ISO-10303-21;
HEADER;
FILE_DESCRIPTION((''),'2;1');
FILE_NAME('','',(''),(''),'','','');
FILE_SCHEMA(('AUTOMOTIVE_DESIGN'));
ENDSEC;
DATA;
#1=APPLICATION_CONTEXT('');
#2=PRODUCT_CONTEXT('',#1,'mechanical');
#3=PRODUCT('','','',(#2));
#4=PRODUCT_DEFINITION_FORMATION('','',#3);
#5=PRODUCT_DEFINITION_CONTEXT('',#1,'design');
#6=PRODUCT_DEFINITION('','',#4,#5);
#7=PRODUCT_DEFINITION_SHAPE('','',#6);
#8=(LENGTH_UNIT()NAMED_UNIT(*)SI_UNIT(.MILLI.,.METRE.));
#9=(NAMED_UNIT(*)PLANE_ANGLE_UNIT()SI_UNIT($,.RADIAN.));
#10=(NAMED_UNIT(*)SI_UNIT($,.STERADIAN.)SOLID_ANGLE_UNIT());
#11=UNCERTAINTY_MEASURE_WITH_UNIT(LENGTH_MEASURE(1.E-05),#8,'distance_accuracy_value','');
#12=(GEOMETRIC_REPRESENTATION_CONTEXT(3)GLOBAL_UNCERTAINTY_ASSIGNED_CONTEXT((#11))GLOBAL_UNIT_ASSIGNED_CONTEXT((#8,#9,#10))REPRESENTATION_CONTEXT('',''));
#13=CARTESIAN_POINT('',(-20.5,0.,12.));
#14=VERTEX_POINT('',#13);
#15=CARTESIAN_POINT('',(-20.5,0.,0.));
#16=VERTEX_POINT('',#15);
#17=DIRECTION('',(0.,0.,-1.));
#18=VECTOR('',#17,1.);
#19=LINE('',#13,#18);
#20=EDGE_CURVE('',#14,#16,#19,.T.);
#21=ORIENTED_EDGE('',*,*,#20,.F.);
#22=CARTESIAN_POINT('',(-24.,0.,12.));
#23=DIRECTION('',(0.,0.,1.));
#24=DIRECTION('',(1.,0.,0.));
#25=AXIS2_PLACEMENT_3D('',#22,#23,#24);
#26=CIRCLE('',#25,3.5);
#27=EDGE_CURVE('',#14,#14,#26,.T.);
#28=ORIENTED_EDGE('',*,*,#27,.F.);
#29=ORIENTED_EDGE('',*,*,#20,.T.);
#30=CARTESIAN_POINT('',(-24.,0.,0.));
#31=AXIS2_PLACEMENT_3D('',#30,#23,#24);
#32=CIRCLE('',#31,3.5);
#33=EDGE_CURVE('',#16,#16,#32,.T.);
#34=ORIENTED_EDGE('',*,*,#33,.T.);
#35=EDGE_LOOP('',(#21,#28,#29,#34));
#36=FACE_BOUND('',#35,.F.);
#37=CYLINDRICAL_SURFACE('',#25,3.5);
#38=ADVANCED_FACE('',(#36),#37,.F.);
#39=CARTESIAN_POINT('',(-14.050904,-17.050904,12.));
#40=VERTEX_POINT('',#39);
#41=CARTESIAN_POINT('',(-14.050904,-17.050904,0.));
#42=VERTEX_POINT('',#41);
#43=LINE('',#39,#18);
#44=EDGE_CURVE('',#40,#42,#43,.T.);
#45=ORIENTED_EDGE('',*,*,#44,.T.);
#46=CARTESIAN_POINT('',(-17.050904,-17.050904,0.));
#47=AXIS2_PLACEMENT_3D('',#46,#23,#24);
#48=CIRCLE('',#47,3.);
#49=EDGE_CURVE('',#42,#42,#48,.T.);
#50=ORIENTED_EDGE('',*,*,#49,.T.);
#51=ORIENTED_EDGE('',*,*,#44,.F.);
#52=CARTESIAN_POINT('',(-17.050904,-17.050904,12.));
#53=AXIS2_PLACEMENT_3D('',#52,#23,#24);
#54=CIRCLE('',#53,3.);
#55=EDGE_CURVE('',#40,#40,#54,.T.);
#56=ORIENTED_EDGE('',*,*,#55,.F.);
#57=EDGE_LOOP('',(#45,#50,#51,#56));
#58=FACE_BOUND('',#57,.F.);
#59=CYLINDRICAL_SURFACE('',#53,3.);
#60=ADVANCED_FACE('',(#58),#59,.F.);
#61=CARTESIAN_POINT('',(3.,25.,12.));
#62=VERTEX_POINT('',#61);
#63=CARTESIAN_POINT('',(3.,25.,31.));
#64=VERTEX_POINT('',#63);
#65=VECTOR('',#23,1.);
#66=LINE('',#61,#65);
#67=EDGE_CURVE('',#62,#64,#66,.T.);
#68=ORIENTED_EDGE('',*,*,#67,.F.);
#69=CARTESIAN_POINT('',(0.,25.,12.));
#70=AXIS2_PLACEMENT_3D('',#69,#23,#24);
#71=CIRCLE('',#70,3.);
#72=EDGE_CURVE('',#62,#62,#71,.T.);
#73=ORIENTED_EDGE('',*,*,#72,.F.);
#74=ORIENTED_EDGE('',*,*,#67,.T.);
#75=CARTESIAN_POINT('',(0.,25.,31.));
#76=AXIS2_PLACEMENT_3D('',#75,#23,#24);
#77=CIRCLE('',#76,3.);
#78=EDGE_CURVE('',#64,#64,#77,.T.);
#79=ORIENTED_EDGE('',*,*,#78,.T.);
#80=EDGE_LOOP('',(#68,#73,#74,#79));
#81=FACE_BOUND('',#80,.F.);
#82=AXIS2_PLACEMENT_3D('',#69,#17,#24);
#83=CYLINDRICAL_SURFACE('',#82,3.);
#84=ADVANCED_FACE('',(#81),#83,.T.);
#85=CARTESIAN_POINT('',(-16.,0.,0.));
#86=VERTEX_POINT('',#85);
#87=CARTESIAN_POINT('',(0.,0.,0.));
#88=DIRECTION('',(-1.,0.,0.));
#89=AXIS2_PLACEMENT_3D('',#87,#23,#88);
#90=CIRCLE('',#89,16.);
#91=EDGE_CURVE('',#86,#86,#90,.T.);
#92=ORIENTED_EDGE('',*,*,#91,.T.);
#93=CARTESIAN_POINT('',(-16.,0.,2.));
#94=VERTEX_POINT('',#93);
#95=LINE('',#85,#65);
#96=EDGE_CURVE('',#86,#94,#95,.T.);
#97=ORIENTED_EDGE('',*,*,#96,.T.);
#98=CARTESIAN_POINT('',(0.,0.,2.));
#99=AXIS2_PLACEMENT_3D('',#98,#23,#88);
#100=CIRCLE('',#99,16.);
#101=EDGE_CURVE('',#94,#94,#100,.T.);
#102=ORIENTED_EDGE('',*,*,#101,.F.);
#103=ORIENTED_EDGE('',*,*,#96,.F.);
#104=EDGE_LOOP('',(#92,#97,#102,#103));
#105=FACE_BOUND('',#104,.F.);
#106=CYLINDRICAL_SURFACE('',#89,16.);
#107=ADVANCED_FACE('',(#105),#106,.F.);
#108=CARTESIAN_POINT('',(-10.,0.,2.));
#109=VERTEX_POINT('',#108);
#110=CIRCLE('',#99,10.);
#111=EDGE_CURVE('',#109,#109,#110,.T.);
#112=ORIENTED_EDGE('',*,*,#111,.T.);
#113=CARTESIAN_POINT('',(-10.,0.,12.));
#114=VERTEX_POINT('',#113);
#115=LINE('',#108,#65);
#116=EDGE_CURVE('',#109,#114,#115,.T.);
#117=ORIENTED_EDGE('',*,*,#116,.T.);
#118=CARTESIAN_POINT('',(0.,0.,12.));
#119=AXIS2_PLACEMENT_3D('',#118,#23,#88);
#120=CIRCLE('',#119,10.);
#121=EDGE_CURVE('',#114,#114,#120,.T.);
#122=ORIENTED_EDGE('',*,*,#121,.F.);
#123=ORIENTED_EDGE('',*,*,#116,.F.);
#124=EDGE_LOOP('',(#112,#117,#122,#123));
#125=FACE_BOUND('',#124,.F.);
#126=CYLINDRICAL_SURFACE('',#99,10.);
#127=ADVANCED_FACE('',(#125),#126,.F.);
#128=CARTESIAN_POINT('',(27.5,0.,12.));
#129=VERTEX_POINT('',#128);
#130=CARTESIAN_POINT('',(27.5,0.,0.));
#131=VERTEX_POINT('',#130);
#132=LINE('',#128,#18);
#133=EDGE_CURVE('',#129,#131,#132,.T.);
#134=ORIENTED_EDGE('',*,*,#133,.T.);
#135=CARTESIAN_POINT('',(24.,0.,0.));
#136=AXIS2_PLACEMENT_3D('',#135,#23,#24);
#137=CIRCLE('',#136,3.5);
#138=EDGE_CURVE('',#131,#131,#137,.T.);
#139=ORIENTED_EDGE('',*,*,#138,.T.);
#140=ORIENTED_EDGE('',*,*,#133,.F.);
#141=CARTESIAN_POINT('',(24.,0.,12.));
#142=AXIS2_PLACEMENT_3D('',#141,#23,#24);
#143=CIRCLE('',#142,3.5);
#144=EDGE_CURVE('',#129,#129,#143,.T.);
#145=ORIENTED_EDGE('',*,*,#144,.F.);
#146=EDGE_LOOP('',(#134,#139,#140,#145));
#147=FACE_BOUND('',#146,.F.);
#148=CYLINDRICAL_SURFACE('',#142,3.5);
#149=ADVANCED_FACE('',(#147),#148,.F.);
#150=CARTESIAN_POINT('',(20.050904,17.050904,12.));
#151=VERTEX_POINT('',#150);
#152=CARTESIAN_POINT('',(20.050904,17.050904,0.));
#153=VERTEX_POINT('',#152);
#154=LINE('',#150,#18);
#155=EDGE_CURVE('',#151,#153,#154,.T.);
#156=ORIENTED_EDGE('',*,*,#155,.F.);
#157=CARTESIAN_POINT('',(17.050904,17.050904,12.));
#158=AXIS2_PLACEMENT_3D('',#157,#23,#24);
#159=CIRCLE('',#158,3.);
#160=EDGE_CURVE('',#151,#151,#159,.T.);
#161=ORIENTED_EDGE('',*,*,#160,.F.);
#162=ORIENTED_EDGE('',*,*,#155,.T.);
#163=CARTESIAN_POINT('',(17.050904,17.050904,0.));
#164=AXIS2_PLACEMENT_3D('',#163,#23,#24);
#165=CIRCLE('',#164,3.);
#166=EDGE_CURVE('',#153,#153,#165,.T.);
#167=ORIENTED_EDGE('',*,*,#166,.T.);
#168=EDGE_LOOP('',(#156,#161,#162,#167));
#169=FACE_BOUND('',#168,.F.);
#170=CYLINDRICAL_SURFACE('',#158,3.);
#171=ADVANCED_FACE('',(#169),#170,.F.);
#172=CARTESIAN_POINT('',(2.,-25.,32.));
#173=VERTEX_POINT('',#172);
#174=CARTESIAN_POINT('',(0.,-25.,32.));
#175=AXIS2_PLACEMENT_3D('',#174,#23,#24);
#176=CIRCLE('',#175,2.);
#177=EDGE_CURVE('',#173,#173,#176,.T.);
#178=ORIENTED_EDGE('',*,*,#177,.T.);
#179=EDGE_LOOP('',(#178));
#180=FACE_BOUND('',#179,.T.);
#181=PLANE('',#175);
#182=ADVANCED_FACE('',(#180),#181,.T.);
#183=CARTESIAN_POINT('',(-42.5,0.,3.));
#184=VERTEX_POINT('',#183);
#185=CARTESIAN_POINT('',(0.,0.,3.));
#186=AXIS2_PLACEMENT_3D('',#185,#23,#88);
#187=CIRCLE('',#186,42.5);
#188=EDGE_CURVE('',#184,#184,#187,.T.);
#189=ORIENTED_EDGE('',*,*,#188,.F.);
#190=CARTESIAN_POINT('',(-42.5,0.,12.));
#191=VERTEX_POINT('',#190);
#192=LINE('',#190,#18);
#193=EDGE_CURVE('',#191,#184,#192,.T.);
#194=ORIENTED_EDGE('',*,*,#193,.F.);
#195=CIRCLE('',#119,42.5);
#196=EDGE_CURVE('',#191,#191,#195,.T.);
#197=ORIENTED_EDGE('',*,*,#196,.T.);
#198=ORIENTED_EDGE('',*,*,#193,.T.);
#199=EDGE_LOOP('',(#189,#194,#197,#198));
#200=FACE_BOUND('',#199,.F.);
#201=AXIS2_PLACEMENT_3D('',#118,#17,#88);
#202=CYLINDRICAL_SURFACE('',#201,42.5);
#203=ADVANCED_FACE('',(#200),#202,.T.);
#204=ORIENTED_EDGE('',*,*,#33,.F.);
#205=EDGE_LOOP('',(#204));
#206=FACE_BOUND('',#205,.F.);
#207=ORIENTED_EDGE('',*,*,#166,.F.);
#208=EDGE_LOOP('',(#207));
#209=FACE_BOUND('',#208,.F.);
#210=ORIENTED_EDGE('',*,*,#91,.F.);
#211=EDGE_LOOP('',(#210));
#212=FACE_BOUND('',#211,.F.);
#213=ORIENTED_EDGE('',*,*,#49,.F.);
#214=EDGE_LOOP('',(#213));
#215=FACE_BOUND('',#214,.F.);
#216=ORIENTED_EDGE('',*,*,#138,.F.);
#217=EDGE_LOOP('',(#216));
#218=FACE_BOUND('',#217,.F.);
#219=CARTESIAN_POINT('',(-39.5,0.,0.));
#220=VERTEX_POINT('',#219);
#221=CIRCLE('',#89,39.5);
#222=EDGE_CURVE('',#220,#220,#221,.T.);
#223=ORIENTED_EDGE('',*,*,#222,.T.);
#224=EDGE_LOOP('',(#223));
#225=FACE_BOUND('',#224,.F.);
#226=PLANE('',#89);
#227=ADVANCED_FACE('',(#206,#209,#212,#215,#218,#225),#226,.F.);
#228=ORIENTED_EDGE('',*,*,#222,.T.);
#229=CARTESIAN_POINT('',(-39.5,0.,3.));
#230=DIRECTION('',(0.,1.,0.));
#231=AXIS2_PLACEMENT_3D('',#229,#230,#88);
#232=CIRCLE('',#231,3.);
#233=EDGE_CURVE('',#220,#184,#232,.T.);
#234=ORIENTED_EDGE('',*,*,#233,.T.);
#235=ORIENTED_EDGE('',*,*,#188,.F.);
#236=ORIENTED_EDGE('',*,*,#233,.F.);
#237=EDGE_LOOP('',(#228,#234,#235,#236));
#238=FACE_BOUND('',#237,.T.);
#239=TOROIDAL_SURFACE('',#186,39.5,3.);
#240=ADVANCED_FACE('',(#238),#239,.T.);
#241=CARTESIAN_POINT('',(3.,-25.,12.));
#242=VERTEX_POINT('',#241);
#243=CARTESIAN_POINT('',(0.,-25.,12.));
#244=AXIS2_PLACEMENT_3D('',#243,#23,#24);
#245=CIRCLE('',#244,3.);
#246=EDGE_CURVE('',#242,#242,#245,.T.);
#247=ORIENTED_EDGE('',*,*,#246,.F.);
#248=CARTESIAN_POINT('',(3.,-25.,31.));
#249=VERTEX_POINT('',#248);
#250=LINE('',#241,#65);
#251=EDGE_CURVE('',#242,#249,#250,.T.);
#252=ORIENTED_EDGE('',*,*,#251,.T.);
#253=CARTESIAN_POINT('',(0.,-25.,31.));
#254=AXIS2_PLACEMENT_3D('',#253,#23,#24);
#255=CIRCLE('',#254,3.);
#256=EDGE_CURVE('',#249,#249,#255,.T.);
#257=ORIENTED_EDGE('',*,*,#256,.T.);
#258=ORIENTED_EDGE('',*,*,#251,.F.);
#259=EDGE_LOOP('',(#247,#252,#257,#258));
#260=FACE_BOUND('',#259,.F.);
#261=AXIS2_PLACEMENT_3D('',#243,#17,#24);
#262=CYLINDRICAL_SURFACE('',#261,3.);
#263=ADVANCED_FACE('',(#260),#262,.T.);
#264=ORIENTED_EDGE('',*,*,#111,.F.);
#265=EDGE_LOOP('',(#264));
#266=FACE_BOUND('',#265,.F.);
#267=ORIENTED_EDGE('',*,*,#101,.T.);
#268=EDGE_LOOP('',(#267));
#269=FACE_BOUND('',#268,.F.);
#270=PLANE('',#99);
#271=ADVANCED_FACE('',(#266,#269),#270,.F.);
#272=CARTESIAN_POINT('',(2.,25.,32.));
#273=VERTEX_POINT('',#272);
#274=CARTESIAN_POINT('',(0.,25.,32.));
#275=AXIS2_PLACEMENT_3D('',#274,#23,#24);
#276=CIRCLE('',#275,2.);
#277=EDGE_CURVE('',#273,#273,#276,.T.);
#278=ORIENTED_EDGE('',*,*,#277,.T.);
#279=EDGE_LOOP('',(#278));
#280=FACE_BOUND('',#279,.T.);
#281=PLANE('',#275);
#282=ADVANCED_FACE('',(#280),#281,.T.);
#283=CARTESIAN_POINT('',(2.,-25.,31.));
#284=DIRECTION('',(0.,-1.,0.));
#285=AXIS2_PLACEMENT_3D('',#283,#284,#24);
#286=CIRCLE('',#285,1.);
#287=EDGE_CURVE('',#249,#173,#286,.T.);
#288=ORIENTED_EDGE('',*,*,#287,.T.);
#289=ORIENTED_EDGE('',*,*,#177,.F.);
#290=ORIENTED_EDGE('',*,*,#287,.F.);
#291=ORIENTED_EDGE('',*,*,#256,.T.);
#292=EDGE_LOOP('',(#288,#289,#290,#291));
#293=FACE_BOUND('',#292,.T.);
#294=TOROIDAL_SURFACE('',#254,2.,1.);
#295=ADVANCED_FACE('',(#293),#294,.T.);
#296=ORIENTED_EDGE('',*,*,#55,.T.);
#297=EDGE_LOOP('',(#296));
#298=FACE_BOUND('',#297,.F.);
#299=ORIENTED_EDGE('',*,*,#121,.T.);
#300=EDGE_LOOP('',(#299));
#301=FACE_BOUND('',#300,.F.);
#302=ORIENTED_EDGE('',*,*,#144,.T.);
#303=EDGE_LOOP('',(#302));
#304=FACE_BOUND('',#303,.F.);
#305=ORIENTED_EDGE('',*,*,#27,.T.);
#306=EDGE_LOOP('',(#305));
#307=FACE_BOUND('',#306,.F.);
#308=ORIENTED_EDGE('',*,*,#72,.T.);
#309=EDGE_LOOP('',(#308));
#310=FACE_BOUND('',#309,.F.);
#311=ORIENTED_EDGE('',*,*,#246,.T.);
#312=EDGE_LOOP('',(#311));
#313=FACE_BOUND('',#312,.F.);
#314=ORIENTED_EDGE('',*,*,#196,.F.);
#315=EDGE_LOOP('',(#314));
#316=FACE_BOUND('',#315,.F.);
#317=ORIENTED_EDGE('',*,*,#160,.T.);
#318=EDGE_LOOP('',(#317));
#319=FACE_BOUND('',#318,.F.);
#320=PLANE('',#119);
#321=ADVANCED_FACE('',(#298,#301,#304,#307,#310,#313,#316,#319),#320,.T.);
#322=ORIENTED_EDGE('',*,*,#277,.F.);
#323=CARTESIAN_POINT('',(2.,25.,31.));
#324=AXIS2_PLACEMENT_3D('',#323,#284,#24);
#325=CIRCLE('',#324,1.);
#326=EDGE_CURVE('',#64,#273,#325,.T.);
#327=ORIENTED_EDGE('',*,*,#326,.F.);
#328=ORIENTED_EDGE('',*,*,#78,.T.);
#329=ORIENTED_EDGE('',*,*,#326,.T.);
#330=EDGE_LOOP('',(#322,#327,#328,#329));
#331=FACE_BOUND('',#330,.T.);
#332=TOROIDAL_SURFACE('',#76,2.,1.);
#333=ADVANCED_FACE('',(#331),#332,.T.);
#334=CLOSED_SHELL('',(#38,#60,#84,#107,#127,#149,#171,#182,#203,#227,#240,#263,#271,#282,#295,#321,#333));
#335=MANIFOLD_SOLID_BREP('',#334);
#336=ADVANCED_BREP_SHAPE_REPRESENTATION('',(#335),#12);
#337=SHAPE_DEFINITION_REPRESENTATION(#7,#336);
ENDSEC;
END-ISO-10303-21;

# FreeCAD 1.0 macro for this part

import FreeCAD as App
import Part
import Sketcher
from FreeCAD import Vector
Q = App.Units.Quantity


def edges_at(feature, points):
    """Names of the edges that pass closest to the given points."""
    edges = feature.Shape.Edges
    near = lambda p: min(range(len(edges)), key=lambda i: edges[i].distToShape(Part.Vertex(*p))[0])
    return sorted({f"Edge{near(p) + 1}" for p in points})

doc = App.newDocument("Part")
params = doc.addObject("Spreadsheet::Sheet", "Params")
for row, (alias, value) in enumerate([
    ("sketch1_width", "6 mm"),
    ("sketch1_height", "2 mm"),
    ("sketch1_height2", "10 mm"),
    ("sketch1_width2", "26.5 mm"),
    ("revolution_angle", "360 deg"),
    ("fillet_radius", "3 mm"),
    ("sketch2_diameter", "7 mm"),
    ("pocket1_length", "25 mm"),
    ("sketch3_diameter", "6 mm"),
    ("pad1_length", "20 mm"),
    ("fillet2_radius", "1 mm"),
    ("sketch4_diameter", "6 mm"),
    ("pocket2_length", "25 mm"),
], start=1):
    params.set(f"A{row}", alias)
    params.set(f"B{row}", "=" + value)
    params.setAlias(f"B{row}", alias)

body = doc.addObject("PartDesign::Body", "Body")

# Sketch on XZ plane
sketch1 = doc.addObject("Sketcher::SketchObject", "Sketch")
body.addObject(sketch1)
sketch1.AttachmentSupport = (doc.XZ_Plane, [""])
sketch1.MapMode = "FlatFace"
sketch1.addGeometry(Part.LineSegment(Vector(-42.5, 0, 0), Vector(-16, 0, 0)), False)
sketch1.addGeometry(Part.LineSegment(Vector(-16, 0, 0), Vector(-16, 2, 0)), False)
sketch1.addGeometry(Part.LineSegment(Vector(-16, 2, 0), Vector(-10, 2, 0)), False)
sketch1.addGeometry(Part.LineSegment(Vector(-10, 2, 0), Vector(-10, 12, 0)), False)
sketch1.addGeometry(Part.LineSegment(Vector(-10, 12, 0), Vector(-42.5, 12, 0)), False)
sketch1.addGeometry(Part.LineSegment(Vector(-42.5, 12, 0), Vector(-42.5, 0, 0)), False)
sketch1.addConstraint(Sketcher.Constraint("Coincident", 0, 2, 1, 1))
sketch1.addConstraint(Sketcher.Constraint("Coincident", 1, 2, 2, 1))
sketch1.addConstraint(Sketcher.Constraint("Coincident", 2, 2, 3, 1))
sketch1.addConstraint(Sketcher.Constraint("Coincident", 3, 2, 4, 1))
sketch1.addConstraint(Sketcher.Constraint("Coincident", 4, 2, 5, 1))
sketch1.addConstraint(Sketcher.Constraint("Coincident", 5, 2, 0, 1))
sketch1.addConstraint(Sketcher.Constraint("Horizontal", 0))
sketch1.addConstraint(Sketcher.Constraint("Vertical", 1))
sketch1.addConstraint(Sketcher.Constraint("Horizontal", 2))
sketch1.addConstraint(Sketcher.Constraint("Vertical", 3))
sketch1.addConstraint(Sketcher.Constraint("Horizontal", 4))
sketch1.addConstraint(Sketcher.Constraint("Vertical", 5))
sketch1.addConstraint(Sketcher.Constraint("PointOnObject", 0, 2, -1))
sketch1.addConstraint(Sketcher.Constraint("DistanceX", 2, 1, 2, 2, Q("6 mm")))
sketch1.addConstraint(Sketcher.Constraint("DistanceY", 1, 1, 1, 2, Q("2 mm")))
sketch1.addConstraint(Sketcher.Constraint("DistanceY", 3, 1, 3, 2, Q("10 mm")))
sketch1.addConstraint(Sketcher.Constraint("DistanceX", 0, 1, 0, 2, Q("26.5 mm")))
sketch1.addConstraint(Sketcher.Constraint("DistanceX", 0, 2, -1, 1, Q("16 mm")))
sketch1.setExpression("Constraints[13]", "Params.sketch1_width")
sketch1.setExpression("Constraints[14]", "Params.sketch1_height")
sketch1.setExpression("Constraints[15]", "Params.sketch1_height2")
sketch1.setExpression("Constraints[16]", "Params.sketch1_width2")
revolution = doc.addObject("PartDesign::Revolution", "Revolution")
body.addObject(revolution)
revolution.Profile = sketch1
revolution.ReferenceAxis = (sketch1, ["V_Axis"])
revolution.setExpression("Angle", "Params.revolution_angle")
doc.recompute()

fillet = doc.addObject("PartDesign::Fillet", "Fillet")
body.addObject(fillet)
fillet.Base = (revolution, edges_at(revolution, [(42.5, 0, 0)]))
fillet.setExpression("Radius", "Params.fillet_radius")

# Sketch on XY plane
sketch2 = doc.addObject("Sketcher::SketchObject", "Sketch001")
body.addObject(sketch2)
sketch2.AttachmentSupport = (doc.XY_Plane, [""])
sketch2.MapMode = "FlatFace"
sketch2.AttachmentOffset = App.Placement(Vector(0, 0, 12), App.Rotation())
sketch2.addGeometry(Part.Circle(Vector(-24, 0, 0), Vector(0, 0, 1), 3.5), False)
sketch2.addGeometry(Part.Circle(Vector(24, 0, 0), Vector(0, 0, 1), 3.5), False)
sketch2.addConstraint(Sketcher.Constraint("Equal", 0, 1))
sketch2.addConstraint(Sketcher.Constraint("Symmetric", 0, 3, 1, 3, -1, 1))
sketch2.addConstraint(Sketcher.Constraint("PointOnObject", 0, 3, -1))
sketch2.addConstraint(Sketcher.Constraint("Diameter", 0, Q("7 mm")))
sketch2.addConstraint(Sketcher.Constraint("DistanceX", 0, 3, -1, 1, Q("24 mm")))
sketch2.setExpression("Constraints[3]", "Params.sketch2_diameter")
pocket1 = doc.addObject("PartDesign::Pocket", "Pocket")
body.addObject(pocket1)
pocket1.Profile = sketch2
pocket1.setExpression("Length", "Params.pocket1_length")

# Sketch on XY plane
sketch3 = doc.addObject("Sketcher::SketchObject", "Sketch002")
body.addObject(sketch3)
sketch3.AttachmentSupport = (doc.XY_Plane, [""])
sketch3.MapMode = "FlatFace"
sketch3.AttachmentOffset = App.Placement(Vector(0, 0, 12), App.Rotation())
sketch3.addGeometry(Part.Circle(Vector(0, -25, 0), Vector(0, 0, 1), 3), False)
sketch3.addGeometry(Part.Circle(Vector(0, 25, 0), Vector(0, 0, 1), 3), False)
sketch3.addConstraint(Sketcher.Constraint("Equal", 0, 1))
sketch3.addConstraint(Sketcher.Constraint("Symmetric", 0, 3, 1, 3, -1, 1))
sketch3.addConstraint(Sketcher.Constraint("PointOnObject", 0, 3, -2))
sketch3.addConstraint(Sketcher.Constraint("Diameter", 0, Q("6 mm")))
sketch3.addConstraint(Sketcher.Constraint("DistanceY", 0, 3, -1, 1, Q("25 mm")))
sketch3.setExpression("Constraints[3]", "Params.sketch3_diameter")
pad1 = doc.addObject("PartDesign::Pad", "Pad")
body.addObject(pad1)
pad1.Profile = sketch3
pad1.setExpression("Length", "Params.pad1_length")
doc.recompute()

fillet2 = doc.addObject("PartDesign::Fillet", "Fillet001")
body.addObject(fillet2)
fillet2.Base = (pad1, edges_at(pad1, [(-3, -25, 32), (-3, 25, 32)]))
fillet2.setExpression("Radius", "Params.fillet2_radius")

# Sketch on XY plane
sketch4 = doc.addObject("Sketcher::SketchObject", "Sketch003")
body.addObject(sketch4)
sketch4.AttachmentSupport = (doc.XY_Plane, [""])
sketch4.MapMode = "FlatFace"
sketch4.AttachmentOffset = App.Placement(Vector(0, 0, 12), App.Rotation())
sketch4.addGeometry(Part.Circle(Vector(-17.1, -17.1, 0), Vector(0, 0, 1), 3), False)
sketch4.addGeometry(Part.Circle(Vector(17.1, 17.1, 0), Vector(0, 0, 1), 3), False)
sketch4.addConstraint(Sketcher.Constraint("Equal", 0, 1))
sketch4.addConstraint(Sketcher.Constraint("Symmetric", 0, 3, 1, 3, -1, 1))
sketch4.addConstraint(Sketcher.Constraint("Diameter", 0, Q("6 mm")))
sketch4.addConstraint(Sketcher.Constraint("DistanceX", 0, 3, -1, 1, Q("17.050904 mm")))
sketch4.addConstraint(Sketcher.Constraint("DistanceY", 0, 3, -1, 1, Q("17.050904 mm")))
sketch4.setExpression("Constraints[2]", "Params.sketch4_diameter")
pocket2 = doc.addObject("PartDesign::Pocket", "Pocket001")
body.addObject(pocket2)
pocket2.Profile = sketch4
pocket2.setExpression("Length", "Params.pocket2_length")

doc.recompute()
